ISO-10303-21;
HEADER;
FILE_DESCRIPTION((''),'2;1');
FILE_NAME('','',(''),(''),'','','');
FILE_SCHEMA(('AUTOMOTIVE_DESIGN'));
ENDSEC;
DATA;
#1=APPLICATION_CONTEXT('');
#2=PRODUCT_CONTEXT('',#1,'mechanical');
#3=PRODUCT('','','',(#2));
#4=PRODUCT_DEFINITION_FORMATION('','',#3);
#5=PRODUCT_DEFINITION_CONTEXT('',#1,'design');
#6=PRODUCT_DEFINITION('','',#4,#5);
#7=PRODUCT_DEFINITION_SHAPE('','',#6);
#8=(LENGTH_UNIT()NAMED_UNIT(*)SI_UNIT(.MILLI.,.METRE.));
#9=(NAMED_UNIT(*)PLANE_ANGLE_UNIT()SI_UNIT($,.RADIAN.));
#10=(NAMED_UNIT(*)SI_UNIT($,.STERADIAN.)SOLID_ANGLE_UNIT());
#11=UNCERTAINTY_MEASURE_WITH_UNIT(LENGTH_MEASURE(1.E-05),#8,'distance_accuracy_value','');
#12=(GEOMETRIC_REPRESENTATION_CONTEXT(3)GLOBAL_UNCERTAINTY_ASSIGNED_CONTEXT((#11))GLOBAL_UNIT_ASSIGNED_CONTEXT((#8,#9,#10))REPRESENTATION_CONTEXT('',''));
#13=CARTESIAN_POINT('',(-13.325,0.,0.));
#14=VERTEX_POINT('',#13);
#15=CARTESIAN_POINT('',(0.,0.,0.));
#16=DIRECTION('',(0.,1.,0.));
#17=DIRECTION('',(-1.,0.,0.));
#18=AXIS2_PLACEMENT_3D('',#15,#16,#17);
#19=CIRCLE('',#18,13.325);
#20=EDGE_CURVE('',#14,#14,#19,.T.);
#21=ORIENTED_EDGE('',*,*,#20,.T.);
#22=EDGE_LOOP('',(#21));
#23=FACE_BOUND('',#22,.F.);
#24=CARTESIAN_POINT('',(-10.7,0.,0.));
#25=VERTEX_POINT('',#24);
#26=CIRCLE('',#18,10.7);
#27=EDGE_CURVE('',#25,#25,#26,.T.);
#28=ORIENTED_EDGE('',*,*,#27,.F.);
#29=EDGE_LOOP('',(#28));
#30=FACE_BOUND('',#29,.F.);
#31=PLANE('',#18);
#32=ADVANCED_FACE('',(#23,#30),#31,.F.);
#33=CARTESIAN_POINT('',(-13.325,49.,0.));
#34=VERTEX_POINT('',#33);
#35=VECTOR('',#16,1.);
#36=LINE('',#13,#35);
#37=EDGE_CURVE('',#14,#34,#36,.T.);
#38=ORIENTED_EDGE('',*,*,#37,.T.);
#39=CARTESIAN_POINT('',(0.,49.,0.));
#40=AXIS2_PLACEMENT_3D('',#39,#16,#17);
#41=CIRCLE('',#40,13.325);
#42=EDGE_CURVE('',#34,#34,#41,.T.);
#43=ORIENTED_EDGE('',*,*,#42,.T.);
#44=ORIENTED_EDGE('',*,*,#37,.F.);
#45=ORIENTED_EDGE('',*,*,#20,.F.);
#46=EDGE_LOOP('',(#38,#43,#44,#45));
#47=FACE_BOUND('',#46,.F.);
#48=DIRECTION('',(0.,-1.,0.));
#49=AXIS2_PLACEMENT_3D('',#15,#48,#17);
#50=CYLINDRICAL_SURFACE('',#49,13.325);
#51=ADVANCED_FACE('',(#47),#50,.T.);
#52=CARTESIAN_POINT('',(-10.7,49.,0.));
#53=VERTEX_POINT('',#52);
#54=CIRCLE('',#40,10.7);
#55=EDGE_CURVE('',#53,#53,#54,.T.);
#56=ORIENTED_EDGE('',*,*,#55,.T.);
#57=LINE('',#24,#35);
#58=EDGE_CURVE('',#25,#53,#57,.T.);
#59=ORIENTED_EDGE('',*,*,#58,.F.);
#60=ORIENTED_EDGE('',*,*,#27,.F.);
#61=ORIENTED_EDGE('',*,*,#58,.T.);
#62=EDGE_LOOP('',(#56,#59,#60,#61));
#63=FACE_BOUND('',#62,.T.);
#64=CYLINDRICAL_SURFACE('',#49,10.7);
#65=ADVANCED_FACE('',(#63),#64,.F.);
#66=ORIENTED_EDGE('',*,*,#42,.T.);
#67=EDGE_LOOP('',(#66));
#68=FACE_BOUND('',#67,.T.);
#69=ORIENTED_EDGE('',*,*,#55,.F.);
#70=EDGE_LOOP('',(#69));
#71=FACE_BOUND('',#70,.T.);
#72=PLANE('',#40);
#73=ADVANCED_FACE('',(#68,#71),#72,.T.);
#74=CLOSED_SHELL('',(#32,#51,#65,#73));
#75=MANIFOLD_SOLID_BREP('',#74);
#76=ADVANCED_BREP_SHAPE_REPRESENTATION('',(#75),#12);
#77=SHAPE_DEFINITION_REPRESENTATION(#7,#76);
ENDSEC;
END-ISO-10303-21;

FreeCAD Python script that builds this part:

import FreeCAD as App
import Part
import Sketcher
Q = App.Units.Quantity

doc = App.newDocument("Part")
body = doc.addObject("PartDesign::Body", "Body")

# Sketch on XZ plane
sketch1 = doc.addObject("Sketcher::SketchObject", "Sketch")
body.addObject(sketch1)
sketch1.AttachmentSupport = (doc.XZ_Plane, [""])
sketch1.MapMode = "FlatFace"
sketch1.addGeometry(Part.Circle(App.Vector(0, 0, 0), App.Vector(0, 0, 1), 13.325), False)
sketch1.addGeometry(Part.Circle(App.Vector(0, 0, 0), App.Vector(0, 0, 1), 10.7), False)
sketch1.addConstraint(Sketcher.Constraint("Coincident", 0, 3, -1, 1))
sketch1.addConstraint(Sketcher.Constraint("Coincident", 1, 3, -1, 1))
sketch1.addConstraint(Sketcher.Constraint("Diameter", 1, Q("21.4 mm")))
sketch1.addConstraint(Sketcher.Constraint("Diameter", 0, Q("26.65 mm")))
pad1 = doc.addObject("PartDesign::Pad", "Pad")
body.addObject(pad1)
pad1.Profile = sketch1
pad1.Length = 49
pad1.Reversed = True

doc.recompute()
